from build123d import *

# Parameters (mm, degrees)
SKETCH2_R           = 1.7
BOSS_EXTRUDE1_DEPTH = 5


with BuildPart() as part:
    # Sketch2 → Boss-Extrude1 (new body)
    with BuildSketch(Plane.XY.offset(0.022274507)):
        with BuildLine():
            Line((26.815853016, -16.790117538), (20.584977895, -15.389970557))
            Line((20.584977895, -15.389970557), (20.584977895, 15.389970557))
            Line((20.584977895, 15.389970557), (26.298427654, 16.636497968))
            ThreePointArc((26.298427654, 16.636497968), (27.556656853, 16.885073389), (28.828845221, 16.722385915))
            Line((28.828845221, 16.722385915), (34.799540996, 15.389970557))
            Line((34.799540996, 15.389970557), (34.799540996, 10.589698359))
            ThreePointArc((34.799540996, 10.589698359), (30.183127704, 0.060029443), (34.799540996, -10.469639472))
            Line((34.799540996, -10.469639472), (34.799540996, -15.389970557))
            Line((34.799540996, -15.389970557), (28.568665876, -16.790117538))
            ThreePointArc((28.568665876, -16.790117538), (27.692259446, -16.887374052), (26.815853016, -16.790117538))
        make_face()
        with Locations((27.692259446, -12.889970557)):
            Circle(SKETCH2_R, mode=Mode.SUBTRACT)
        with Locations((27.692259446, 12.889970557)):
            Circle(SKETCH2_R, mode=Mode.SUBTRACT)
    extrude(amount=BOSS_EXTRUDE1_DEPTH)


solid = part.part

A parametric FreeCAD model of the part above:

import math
import FreeCAD as App
import Part
import Sketcher
from FreeCAD import Vector

doc = App.newDocument("Part")
body = doc.addObject("PartDesign::Body", "Body")

sketch1 = body.newObject("Sketcher::SketchObject", "Sketch")
sketch1.AttachmentSupport = (doc.getObject("XY_Plane"), [""])
sketch1.MapMode = "FlatFace"
sketch1.AttachmentOffset = App.Placement(Vector(0, 0, 0.022275), App.Rotation())
sketch1.addGeometry(Part.LineSegment(Vector(20.6, -15.4, 0), Vector(26.8, -16.8, 0)), False)
sketch1.addGeometry(Part.ArcOfCircle(Part.Circle(Vector(27.7, -12.9, 0), Vector(0, 0, 1), 4), math.radians(-103), math.radians(-77)), False)
sketch1.addGeometry(Part.LineSegment(Vector(28.6, -16.8, 0), Vector(34.8, -15.4, 0)), False)
sketch1.addGeometry(Part.LineSegment(Vector(34.8, -15.4, 0), Vector(34.8, -10.5, 0)), False)
sketch1.addGeometry(Part.ArcOfCircle(Part.Circle(Vector(44.5, 0.1, 0), Vector(0, 0, 1), 14.3), math.radians(133), math.radians(227)), False)
sketch1.addGeometry(Part.LineSegment(Vector(34.8, 10.6, 0), Vector(34.8, 15.4, 0)), False)
sketch1.addGeometry(Part.LineSegment(Vector(34.8, 15.4, 0), Vector(28.8, 16.7, 0)), False)
sketch1.addGeometry(Part.ArcOfCircle(Part.Circle(Vector(27.7, 12.9, 0), Vector(0, 0, 1), 4), math.radians(73), math.radians(110)), False)
sketch1.addGeometry(Part.LineSegment(Vector(26.3, 16.6, 0), Vector(20.6, 15.4, 0)), False)
sketch1.addGeometry(Part.LineSegment(Vector(20.6, 15.4, 0), Vector(20.6, -15.4, 0)), False)
sketch1.addGeometry(Part.Circle(Vector(27.7, -12.9, 0), Vector(0, 0, 1), 1.7), False)
sketch1.addGeometry(Part.Circle(Vector(27.7, 12.9, 0), Vector(0, 0, 1), 1.7), False)
sketch1.addConstraint(Sketcher.Constraint("Tangent", 0, 2, 1, 1))
sketch1.addConstraint(Sketcher.Constraint("Tangent", 1, 2, 2, 1))
sketch1.addConstraint(Sketcher.Constraint("Coincident", 2, 2, 3, 1))
sketch1.addConstraint(Sketcher.Constraint("Coincident", 3, 2, 4, 2))
sketch1.addConstraint(Sketcher.Constraint("Coincident", 4, 1, 5, 1))
sketch1.addConstraint(Sketcher.Constraint("Coincident", 5, 2, 6, 1))
sketch1.addConstraint(Sketcher.Constraint("Coincident", 6, 2, 7, 1))
sketch1.addConstraint(Sketcher.Constraint("Coincident", 7, 2, 8, 1))
sketch1.addConstraint(Sketcher.Constraint("Coincident", 8, 2, 9, 1))
sketch1.addConstraint(Sketcher.Constraint("Coincident", 9, 2, 0, 1))
sketch1.addConstraint(Sketcher.Constraint("Vertical", 3))
sketch1.addConstraint(Sketcher.Constraint("Vertical", 5))
sketch1.addConstraint(Sketcher.Constraint("Vertical", 9))
sketch1.addConstraint(Sketcher.Constraint("Coincident", 10, 3, 1, 3))
sketch1.addConstraint(Sketcher.Constraint("Coincident", 11, 3, 7, 3))
sketch1.addConstraint(Sketcher.Constraint("Equal", 1, 7))
sketch1.addConstraint(Sketcher.Constraint("Equal", 10, 11))
sketch1.addConstraint(Sketcher.Constraint("Symmetric", 1, 3, 7, 3, -1))
sketch1.addConstraint(Sketcher.Constraint("Symmetric", 2, 2, 5, 2, -1))
sketch1.addConstraint(Sketcher.Constraint("Horizontal", 0, 2, 1, 2))
sketch1.addConstraint(Sketcher.Constraint("Horizontal", 5, 2, 8, 2))
sketch1.addConstraint(Sketcher.Constraint("Horizontal", 2, 2, 9, 2))
sketch1.addConstraint(Sketcher.Constraint("Diameter", 10, 3.4))
sketch1.addConstraint(Sketcher.Constraint("DistanceX", -1, 1, 4, 3, 44.5))
sketch1.addConstraint(Sketcher.Constraint("DistanceY", 2, 2, 10, 3, 2.5))
sketch1.addConstraint(Sketcher.Constraint("DistanceY", 1, 3, 4, 3, 12.95))
sketch1.addConstraint(Sketcher.Constraint("Radius", 1, 3.997404))
sketch1.addConstraint(Sketcher.Constraint("Radius", 4, 14.316872))
sketch1.addConstraint(Sketcher.Constraint("DistanceY", 3, 1, 3, 2, 4.920331))
sketch1.addConstraint(Sketcher.Constraint("DistanceY", 9, 2, 9, 1, 30.779941))
sketch1.addConstraint(Sketcher.Constraint("DistanceY", 4, 1, 7, 2, 6.0468))
sketch1.addConstraint(Sketcher.Constraint("Distance", 6, 6.11756))
sketch1.addConstraint(Sketcher.Constraint("Distance", 8, 5.847849))
pad1 = body.newObject("PartDesign::Pad", "Pad")
pad1.Profile = sketch1
pad1.Length = 5

doc.recompute()
